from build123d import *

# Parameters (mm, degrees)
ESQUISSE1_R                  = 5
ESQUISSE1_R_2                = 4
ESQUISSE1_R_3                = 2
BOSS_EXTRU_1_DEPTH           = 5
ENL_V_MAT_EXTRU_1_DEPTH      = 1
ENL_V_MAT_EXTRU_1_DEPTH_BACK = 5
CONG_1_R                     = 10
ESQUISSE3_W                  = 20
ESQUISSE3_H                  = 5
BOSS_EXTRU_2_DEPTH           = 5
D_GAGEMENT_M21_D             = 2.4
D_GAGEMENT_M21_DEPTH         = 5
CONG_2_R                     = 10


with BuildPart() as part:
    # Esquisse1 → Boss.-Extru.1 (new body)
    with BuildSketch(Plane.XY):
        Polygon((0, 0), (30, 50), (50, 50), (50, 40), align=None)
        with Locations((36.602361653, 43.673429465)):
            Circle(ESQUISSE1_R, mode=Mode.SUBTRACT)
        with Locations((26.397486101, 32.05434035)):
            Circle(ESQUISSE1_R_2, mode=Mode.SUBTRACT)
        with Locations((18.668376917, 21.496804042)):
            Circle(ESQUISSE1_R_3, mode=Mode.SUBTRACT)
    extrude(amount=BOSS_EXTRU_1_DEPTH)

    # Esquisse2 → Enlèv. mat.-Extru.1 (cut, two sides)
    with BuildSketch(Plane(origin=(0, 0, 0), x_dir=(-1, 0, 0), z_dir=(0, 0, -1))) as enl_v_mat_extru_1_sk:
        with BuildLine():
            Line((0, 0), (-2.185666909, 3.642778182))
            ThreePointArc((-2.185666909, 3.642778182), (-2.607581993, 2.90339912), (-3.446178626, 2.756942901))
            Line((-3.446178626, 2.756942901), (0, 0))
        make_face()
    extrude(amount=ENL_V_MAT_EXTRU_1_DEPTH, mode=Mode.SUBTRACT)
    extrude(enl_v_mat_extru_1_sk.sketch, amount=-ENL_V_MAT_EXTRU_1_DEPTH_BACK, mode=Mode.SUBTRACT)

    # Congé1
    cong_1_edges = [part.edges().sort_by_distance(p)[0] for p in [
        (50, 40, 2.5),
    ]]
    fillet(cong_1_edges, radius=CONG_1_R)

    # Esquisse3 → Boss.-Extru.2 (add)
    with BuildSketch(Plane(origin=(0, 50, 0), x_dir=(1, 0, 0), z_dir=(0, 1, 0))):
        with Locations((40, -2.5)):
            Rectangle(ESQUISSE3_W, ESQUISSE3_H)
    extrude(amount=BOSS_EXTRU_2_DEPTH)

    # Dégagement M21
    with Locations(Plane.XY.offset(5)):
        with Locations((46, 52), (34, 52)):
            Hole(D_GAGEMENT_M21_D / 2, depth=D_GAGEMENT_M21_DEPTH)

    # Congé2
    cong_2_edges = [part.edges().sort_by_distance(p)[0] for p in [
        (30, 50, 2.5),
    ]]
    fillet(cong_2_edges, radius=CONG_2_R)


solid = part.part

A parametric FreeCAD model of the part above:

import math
import FreeCAD as App
import Part
import Sketcher

V = App.Vector


def edges_at(feature, points):
    """Names of the edges that pass closest to the given points."""
    edges = feature.Shape.Edges
    near = lambda p: min(range(len(edges)), key=lambda i: edges[i].distToShape(Part.Vertex(*p))[0])
    return sorted({f"Edge{near(p) + 1}" for p in points})


def add_polygon(sketch, points):
    """Adds a closed chain of lines whose ends are joined by coincident constraints."""
    first, n = sketch.GeometryCount, len(points)
    for a, b in zip(points, points[1:] + points[:1]):
        sketch.addGeometry(Part.LineSegment(App.Vector(*a, 0), App.Vector(*b, 0)), False)
    for i in range(n):
        sketch.addConstraint(Sketcher.Constraint("Coincident", first + i, 2, first + (i + 1) % n, 1))

doc = App.newDocument("Part")
body = doc.addObject("PartDesign::Body", "Body")

# Sketch on XY plane
sketch1 = body.newObject("Sketcher::SketchObject", "Sketch")
sketch1.AttachmentSupport = (doc.getObject("XY_Plane"), [""])
sketch1.MapMode = "FlatFace"
add_polygon(sketch1, [(30, 50), (0, 0), (50, 40), (50, 50)])  # lines 0-3
sketch1.addGeometry(Part.Circle(V(18.668377, 21.496804, 0), V(0, 0, 1), 2), False)  # 4
sketch1.addGeometry(Part.Circle(V(26.397486, 32.05434, 0), V(0, 0, 1), 4), False)  # 5
sketch1.addGeometry(Part.Circle(V(36.602362, 43.673429, 0), V(0, 0, 1), 5), False)  # 6
sketch1.addConstraint(Sketcher.Constraint("Vertical", 2))
sketch1.addConstraint(Sketcher.Constraint("Horizontal", 3))
sketch1.addConstraint(Sketcher.Constraint("Coincident", 0, 2, -1, 1))
sketch1.addConstraint(Sketcher.Constraint("Diameter", 4, 4.0))
sketch1.addConstraint(Sketcher.Constraint("Diameter", 5, 8.0))
sketch1.addConstraint(Sketcher.Constraint("Diameter", 6, 10.0))
sketch1.addConstraint(Sketcher.Constraint("DistanceX", 3, 2, 3, 1, 20.0))
sketch1.addConstraint(Sketcher.Constraint("DistanceY", 2, 1, 2, 2, 10.0))
sketch1.addConstraint(Sketcher.Constraint("DistanceX", -1, 1, 1, 2, 50.0))
sketch1.addConstraint(Sketcher.Constraint("DistanceY", -1, 1, 1, 2, 40.0))
sketch1.addConstraint(Sketcher.Constraint("DistanceY", -1, 1, 5, 3, 32.05434))
sketch1.addConstraint(Sketcher.Constraint("DistanceX", -1, 1, 6, 3, 36.602362))
sketch1.addConstraint(Sketcher.Constraint("DistanceY", -1, 1, 6, 3, 43.673429))
sketch1.addConstraint(Sketcher.Constraint("DistanceX", 4, 3, 5, 3, 7.729109))
sketch1.addConstraint(Sketcher.Constraint("DistanceX", -1, 1, 4, 3, 18.668377))
sketch1.addConstraint(Sketcher.Constraint("DistanceY", -1, 1, 4, 3, 21.496804))
pad1 = body.newObject("PartDesign::Pad", "Pad")
pad1.Profile = sketch1
pad1.Length = 5

# Sketch on XY plane
sketch2 = body.newObject("Sketcher::SketchObject", "Sketch001")
sketch2.AttachmentSupport = (doc.getObject("XY_Plane"), [""])
sketch2.MapMode = "FlatFace"
sketch2.addGeometry(Part.LineSegment(V(0, 0, 0), V(2.185667, 3.642778, 0)), False)
sketch2.addGeometry(Part.ArcOfCircle(Part.Circle(V(3.182558, 3.721569, 0), V(0, 0, 1), 1), math.radians(-175.480914), math.radians(-74.714997)), False)
sketch2.addGeometry(Part.LineSegment(V(3.446179, 2.756943, 0), V(0, 0, 0)), False)
sketch2.addConstraint(Sketcher.Constraint("Coincident", 0, 2, 1, 1))
sketch2.addConstraint(Sketcher.Constraint("Coincident", 1, 2, 2, 1))
sketch2.addConstraint(Sketcher.Constraint("Coincident", 2, 2, 0, 1))
sketch2.addConstraint(Sketcher.Constraint("Coincident", 2, 2, -1, 1))
sketch2.addConstraint(Sketcher.Constraint("Radius", 1, 1.0))
sketch2.addConstraint(Sketcher.Constraint("Distance", 2, 4.413262))
sketch2.addConstraint(Sketcher.Constraint("DistanceX", -1, 1, 1, 3, 3.182558))
sketch2.addConstraint(Sketcher.Constraint("DistanceY", -1, 1, 1, 3, 3.721569))
sketch2.addConstraint(Sketcher.Constraint("DistanceY", -1, 1, 0, 2, 3.642778))
pocket1 = body.newObject("PartDesign::Pocket", "Pocket")
pocket1.Profile = sketch2
pocket1.Type = "ThroughAll"
pocket1.Midplane = True
doc.recompute()

fillet = body.newObject("PartDesign::Fillet", "Fillet")
fillet.Base = (pocket1, edges_at(pocket1, [(50, 40, 2.5)]))
fillet.Radius = 10

# Sketch on XZ plane
sketch3 = body.newObject("Sketcher::SketchObject", "Sketch002")
sketch3.AttachmentSupport = (doc.getObject("XZ_Plane"), [""])
sketch3.MapMode = "FlatFace"
sketch3.AttachmentOffset = App.Placement(V(0, 0, -50), App.Rotation())
add_polygon(sketch3, [(30, 0), (30, 5), (50, 5), (50, 0)])  # lines 0-3
sketch3.addConstraint(Sketcher.Constraint("Vertical", 0))
sketch3.addConstraint(Sketcher.Constraint("Horizontal", 1))
sketch3.addConstraint(Sketcher.Constraint("Vertical", 2))
sketch3.addConstraint(Sketcher.Constraint("Horizontal", 3))
sketch3.addConstraint(Sketcher.Constraint("PointOnObject", 2, 2, -1))
sketch3.addConstraint(Sketcher.Constraint("DistanceX", 1, 1, 1, 2, 20.0))
sketch3.addConstraint(Sketcher.Constraint("DistanceY", 0, 1, 0, 2, 5.0))
sketch3.addConstraint(Sketcher.Constraint("DistanceX", -1, 1, 0, 2, 30.0))
pad2 = body.newObject("PartDesign::Pad", "Pad001")
pad2.Profile = sketch3
pad2.Length = 5
pad2.Reversed = True

# Sketch on XY plane
sketch4 = body.newObject("Sketcher::SketchObject", "Sketch003")
sketch4.AttachmentSupport = (doc.getObject("XY_Plane"), [""])
sketch4.MapMode = "FlatFace"
sketch4.AttachmentOffset = App.Placement(V(0, 0, 5), App.Rotation())
sketch4.addGeometry(Part.Circle(V(46, 52, 0), V(0, 0, 1), 1.2), False)
sketch4.addGeometry(Part.Circle(V(34, 52, 0), V(0, 0, 1), 1.2), False)
sketch4.addConstraint(Sketcher.Constraint("Equal", 0, 1))
sketch4.addConstraint(Sketcher.Constraint("Horizontal", 0, 3, 1, 3))
sketch4.addConstraint(Sketcher.Constraint("Diameter", 0, 2.4))
sketch4.addConstraint(Sketcher.Constraint("DistanceX", -1, 1, 0, 3, 46.0))
sketch4.addConstraint(Sketcher.Constraint("DistanceY", -1, 1, 0, 3, 52.0))
sketch4.addConstraint(Sketcher.Constraint("DistanceX", -1, 1, 1, 3, 34.0))
doc.recompute()
hole = body.newObject("PartDesign::Hole", "Hole")
hole.Profile = sketch4
hole.ThreadType = "None"
hole.Diameter = 2.4
hole.DepthType = "Dimension"
hole.Depth = 5
hole.DrillPoint = "Flat"
doc.recompute()

fillet2 = body.newObject("PartDesign::Fillet", "Fillet001")
fillet2.Base = (hole, edges_at(hole, [(30, 50, 2.5)]))
fillet2.Radius = 10

doc.recompute()
